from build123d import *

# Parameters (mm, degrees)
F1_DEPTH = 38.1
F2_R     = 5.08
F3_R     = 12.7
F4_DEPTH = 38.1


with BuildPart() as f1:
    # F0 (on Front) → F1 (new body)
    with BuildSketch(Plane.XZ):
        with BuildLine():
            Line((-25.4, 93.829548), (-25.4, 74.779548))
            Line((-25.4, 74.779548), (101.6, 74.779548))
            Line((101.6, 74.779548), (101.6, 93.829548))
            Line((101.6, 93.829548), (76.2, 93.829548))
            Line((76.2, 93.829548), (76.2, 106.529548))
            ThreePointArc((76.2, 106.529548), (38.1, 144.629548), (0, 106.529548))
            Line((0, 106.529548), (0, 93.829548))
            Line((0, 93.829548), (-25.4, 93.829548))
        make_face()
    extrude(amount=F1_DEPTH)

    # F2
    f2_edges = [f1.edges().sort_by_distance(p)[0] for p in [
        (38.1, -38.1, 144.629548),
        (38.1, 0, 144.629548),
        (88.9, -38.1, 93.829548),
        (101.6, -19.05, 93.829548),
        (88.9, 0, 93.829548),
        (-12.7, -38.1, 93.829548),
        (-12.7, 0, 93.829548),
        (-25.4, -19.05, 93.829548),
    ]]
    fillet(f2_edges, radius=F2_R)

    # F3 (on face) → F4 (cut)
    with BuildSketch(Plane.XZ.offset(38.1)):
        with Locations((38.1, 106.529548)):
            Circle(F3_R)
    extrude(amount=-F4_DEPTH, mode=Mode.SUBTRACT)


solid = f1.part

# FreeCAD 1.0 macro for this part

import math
import FreeCAD as App
import Part
import Sketcher

V = App.Vector
Q = App.Units.Quantity


def edges_at(feature, points):
    """Names of the edges that pass closest to the given points."""
    edges = feature.Shape.Edges
    near = lambda p: min(range(len(edges)), key=lambda i: edges[i].distToShape(Part.Vertex(*p))[0])
    return sorted({f"Edge{near(p) + 1}" for p in points})

doc = App.newDocument("Part")
params = doc.addObject("Spreadsheet::Sheet", "Params")
for row, (alias, value) in enumerate([
    ("sketch1_radius", "1.5 in"),
    ("sketch1_width", "5 in"),
    ("sketch1_height", "0.5 in"),
    ("sketch1_height2", "0.75 in"),
    ("pad1_length", "1.5 in"),
    ("fillet_radius", "0.2 in"),
    ("sketch2_diameter", "1 in"),
    ("pocket1_length", "1.5 in"),
], start=1):
    params.set(f"A{row}", alias)
    params.set(f"B{row}", "=" + value)
    params.setAlias(f"B{row}", alias)

body = doc.addObject("PartDesign::Body", "Body")

# Sketch on XZ plane
sketch1 = doc.addObject("Sketcher::SketchObject", "Sketch")
body.addObject(sketch1)
sketch1.AttachmentSupport = (doc.XZ_Plane, [""])
sketch1.MapMode = "FlatFace"
sketch1.addGeometry([
    Part.LineSegment(V(-25.4, 93.829548, 0), V(-25.4, 74.779548, 0)),  # 0
    Part.LineSegment(V(-25.4, 74.779548, 0), V(101.6, 74.779548, 0)),  # 1
    Part.LineSegment(V(101.6, 74.779548, 0), V(101.6, 93.829548, 0)),  # 2
    Part.LineSegment(V(101.6, 93.829548, 0), V(76.2, 93.829548, 0)),  # 3
    Part.LineSegment(V(76.2, 93.829548, 0), V(76.2, 106.529548, 0)),  # 4
    Part.ArcOfCircle(Part.Circle(V(38.1, 106.529548, 0), V(0, 0, 1), 38.1), math.radians(0), math.radians(180)),  # 5
    Part.LineSegment(V(0, 106.529548, 0), V(0, 93.829548, 0)),  # 6
    Part.LineSegment(V(0, 93.829548, 0), V(-25.4, 93.829548, 0)),  # 7
], False)
sketch1.addConstraint([
    Sketcher.Constraint("Coincident", 0, 2, 1, 1),
    Sketcher.Constraint("Coincident", 1, 2, 2, 1),
    Sketcher.Constraint("Coincident", 2, 2, 3, 1),
    Sketcher.Constraint("Coincident", 3, 2, 4, 1),
    Sketcher.Constraint("Tangent", 4, 2, 5, 1),
    Sketcher.Constraint("Tangent", 5, 2, 6, 1),
    Sketcher.Constraint("Coincident", 6, 2, 7, 1),
    Sketcher.Constraint("Coincident", 7, 2, 0, 1),
    Sketcher.Constraint("Vertical", 0),
    Sketcher.Constraint("Horizontal", 1),
    Sketcher.Constraint("Vertical", 2),
    Sketcher.Constraint("Horizontal", 3),
    Sketcher.Constraint("Vertical", 4),
    Sketcher.Constraint("Vertical", 6),
    Sketcher.Constraint("Horizontal", 7),
    Sketcher.Constraint("PointOnObject", 5, 2, -2),
    Sketcher.Constraint("Horizontal", 3, 2, 6, 2),
    Sketcher.Constraint("Equal", 3, 7),
    Sketcher.Constraint("Radius", 5, Q("1.5 in")),
    Sketcher.Constraint("DistanceX", 1, 1, 1, 2, Q("5 in")),
    Sketcher.Constraint("DistanceY", 4, 1, 4, 2, Q("0.5 in")),
    Sketcher.Constraint("DistanceY", 0, 2, 0, 1, Q("0.75 in")),
    Sketcher.Constraint("DistanceY", -1, 1, 5, 3, 106.529548),
])
sketch1.setExpression("Constraints[18]", "Params.sketch1_radius")
sketch1.setExpression("Constraints[19]", "Params.sketch1_width")
sketch1.setExpression("Constraints[20]", "Params.sketch1_height")
sketch1.setExpression("Constraints[21]", "Params.sketch1_height2")
pad1 = doc.addObject("PartDesign::Pad", "Pad")
body.addObject(pad1)
pad1.Profile = sketch1
pad1.setExpression("Length", "Params.pad1_length")
doc.recompute()

fillet = doc.addObject("PartDesign::Fillet", "Fillet")
body.addObject(fillet)
fillet.Base = (pad1, edges_at(pad1, [
    (38.1, -38.1, 144.63),
    (38.1, 0, 144.63),
    (88.9, -38.1, 93.83),
    (101.6, -19.05, 93.83),
    (88.9, 0, 93.83),
    (-12.7, -38.1, 93.83),
    (-12.7, 0, 93.83),
    (-25.4, -19.05, 93.83),
]))
fillet.setExpression("Radius", "Params.fillet_radius")

# Sketch on XZ plane
sketch2 = doc.addObject("Sketcher::SketchObject", "Sketch001")
body.addObject(sketch2)
sketch2.AttachmentSupport = (doc.XZ_Plane, [""])
sketch2.MapMode = "FlatFace"
sketch2.AttachmentOffset = App.Placement(V(0, 0, 1.5 * 25.4), App.Rotation())
sketch2.addGeometry(Part.Circle(V(38.1, 106.529548, 0), V(0, 0, 1), 12.7), False)
sketch2.addConstraint([
    Sketcher.Constraint("Diameter", 0, Q("1 in")),
    Sketcher.Constraint("DistanceX", -1, 1, 0, 3, Q("1.5 in")),
    Sketcher.Constraint("DistanceY", -1, 1, 0, 3, 106.529548),
])
sketch2.setExpression("Constraints[0]", "Params.sketch2_diameter")
pocket1 = doc.addObject("PartDesign::Pocket", "Pocket")
body.addObject(pocket1)
pocket1.Profile = sketch2
pocket1.setExpression("Length", "Params.pocket1_length")

doc.recompute()
